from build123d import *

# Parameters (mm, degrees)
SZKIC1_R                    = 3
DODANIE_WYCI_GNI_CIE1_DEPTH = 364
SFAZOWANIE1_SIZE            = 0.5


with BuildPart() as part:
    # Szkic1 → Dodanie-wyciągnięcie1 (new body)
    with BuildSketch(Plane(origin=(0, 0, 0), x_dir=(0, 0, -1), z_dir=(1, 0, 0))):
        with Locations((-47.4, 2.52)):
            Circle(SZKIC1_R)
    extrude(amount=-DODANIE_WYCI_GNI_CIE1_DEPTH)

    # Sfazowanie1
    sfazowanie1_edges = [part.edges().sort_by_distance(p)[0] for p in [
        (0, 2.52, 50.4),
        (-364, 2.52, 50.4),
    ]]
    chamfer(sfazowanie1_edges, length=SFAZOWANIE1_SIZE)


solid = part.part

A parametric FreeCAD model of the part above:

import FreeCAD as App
import Part
import Sketcher

V = App.Vector
Q = App.Units.Quantity


def edges_at(feature, points):
    """Names of the edges that pass closest to the given points."""
    edges = feature.Shape.Edges
    near = lambda p: min(range(len(edges)), key=lambda i: edges[i].distToShape(Part.Vertex(*p))[0])
    return sorted({f"Edge{near(p) + 1}" for p in points})

doc = App.newDocument("Part")
body = doc.addObject("PartDesign::Body", "Body")

sketch1 = body.newObject("Sketcher::SketchObject", "Sketch")
sketch1.AttachmentSupport = (doc.getObject("YZ_Plane"), [""])
sketch1.MapMode = "FlatFace"
sketch1.addGeometry(Part.Circle(V(2.52, 47.4, 0), V(0, 0, 1), 3), False)
sketch1.addConstraint(Sketcher.Constraint("Diameter", 0, Q("6 mm")))
sketch1.addConstraint(Sketcher.Constraint("DistanceY", -1, 1, 0, 3, Q("47.4 mm")))
sketch1.addConstraint(Sketcher.Constraint("DistanceX", -1, 1, 0, 3, Q("2.52 mm")))
pad1 = body.newObject("PartDesign::Pad", "Pad")
pad1.Profile = sketch1
pad1.Length = 364
pad1.Reversed = True
doc.recompute()

chamfer = body.newObject("PartDesign::Chamfer", "Chamfer")
chamfer.Base = (pad1, edges_at(pad1, [(0, 2.52, 50.4), (-364, 2.52, 50.4)]))
chamfer.Size = 0.5

doc.recompute()
